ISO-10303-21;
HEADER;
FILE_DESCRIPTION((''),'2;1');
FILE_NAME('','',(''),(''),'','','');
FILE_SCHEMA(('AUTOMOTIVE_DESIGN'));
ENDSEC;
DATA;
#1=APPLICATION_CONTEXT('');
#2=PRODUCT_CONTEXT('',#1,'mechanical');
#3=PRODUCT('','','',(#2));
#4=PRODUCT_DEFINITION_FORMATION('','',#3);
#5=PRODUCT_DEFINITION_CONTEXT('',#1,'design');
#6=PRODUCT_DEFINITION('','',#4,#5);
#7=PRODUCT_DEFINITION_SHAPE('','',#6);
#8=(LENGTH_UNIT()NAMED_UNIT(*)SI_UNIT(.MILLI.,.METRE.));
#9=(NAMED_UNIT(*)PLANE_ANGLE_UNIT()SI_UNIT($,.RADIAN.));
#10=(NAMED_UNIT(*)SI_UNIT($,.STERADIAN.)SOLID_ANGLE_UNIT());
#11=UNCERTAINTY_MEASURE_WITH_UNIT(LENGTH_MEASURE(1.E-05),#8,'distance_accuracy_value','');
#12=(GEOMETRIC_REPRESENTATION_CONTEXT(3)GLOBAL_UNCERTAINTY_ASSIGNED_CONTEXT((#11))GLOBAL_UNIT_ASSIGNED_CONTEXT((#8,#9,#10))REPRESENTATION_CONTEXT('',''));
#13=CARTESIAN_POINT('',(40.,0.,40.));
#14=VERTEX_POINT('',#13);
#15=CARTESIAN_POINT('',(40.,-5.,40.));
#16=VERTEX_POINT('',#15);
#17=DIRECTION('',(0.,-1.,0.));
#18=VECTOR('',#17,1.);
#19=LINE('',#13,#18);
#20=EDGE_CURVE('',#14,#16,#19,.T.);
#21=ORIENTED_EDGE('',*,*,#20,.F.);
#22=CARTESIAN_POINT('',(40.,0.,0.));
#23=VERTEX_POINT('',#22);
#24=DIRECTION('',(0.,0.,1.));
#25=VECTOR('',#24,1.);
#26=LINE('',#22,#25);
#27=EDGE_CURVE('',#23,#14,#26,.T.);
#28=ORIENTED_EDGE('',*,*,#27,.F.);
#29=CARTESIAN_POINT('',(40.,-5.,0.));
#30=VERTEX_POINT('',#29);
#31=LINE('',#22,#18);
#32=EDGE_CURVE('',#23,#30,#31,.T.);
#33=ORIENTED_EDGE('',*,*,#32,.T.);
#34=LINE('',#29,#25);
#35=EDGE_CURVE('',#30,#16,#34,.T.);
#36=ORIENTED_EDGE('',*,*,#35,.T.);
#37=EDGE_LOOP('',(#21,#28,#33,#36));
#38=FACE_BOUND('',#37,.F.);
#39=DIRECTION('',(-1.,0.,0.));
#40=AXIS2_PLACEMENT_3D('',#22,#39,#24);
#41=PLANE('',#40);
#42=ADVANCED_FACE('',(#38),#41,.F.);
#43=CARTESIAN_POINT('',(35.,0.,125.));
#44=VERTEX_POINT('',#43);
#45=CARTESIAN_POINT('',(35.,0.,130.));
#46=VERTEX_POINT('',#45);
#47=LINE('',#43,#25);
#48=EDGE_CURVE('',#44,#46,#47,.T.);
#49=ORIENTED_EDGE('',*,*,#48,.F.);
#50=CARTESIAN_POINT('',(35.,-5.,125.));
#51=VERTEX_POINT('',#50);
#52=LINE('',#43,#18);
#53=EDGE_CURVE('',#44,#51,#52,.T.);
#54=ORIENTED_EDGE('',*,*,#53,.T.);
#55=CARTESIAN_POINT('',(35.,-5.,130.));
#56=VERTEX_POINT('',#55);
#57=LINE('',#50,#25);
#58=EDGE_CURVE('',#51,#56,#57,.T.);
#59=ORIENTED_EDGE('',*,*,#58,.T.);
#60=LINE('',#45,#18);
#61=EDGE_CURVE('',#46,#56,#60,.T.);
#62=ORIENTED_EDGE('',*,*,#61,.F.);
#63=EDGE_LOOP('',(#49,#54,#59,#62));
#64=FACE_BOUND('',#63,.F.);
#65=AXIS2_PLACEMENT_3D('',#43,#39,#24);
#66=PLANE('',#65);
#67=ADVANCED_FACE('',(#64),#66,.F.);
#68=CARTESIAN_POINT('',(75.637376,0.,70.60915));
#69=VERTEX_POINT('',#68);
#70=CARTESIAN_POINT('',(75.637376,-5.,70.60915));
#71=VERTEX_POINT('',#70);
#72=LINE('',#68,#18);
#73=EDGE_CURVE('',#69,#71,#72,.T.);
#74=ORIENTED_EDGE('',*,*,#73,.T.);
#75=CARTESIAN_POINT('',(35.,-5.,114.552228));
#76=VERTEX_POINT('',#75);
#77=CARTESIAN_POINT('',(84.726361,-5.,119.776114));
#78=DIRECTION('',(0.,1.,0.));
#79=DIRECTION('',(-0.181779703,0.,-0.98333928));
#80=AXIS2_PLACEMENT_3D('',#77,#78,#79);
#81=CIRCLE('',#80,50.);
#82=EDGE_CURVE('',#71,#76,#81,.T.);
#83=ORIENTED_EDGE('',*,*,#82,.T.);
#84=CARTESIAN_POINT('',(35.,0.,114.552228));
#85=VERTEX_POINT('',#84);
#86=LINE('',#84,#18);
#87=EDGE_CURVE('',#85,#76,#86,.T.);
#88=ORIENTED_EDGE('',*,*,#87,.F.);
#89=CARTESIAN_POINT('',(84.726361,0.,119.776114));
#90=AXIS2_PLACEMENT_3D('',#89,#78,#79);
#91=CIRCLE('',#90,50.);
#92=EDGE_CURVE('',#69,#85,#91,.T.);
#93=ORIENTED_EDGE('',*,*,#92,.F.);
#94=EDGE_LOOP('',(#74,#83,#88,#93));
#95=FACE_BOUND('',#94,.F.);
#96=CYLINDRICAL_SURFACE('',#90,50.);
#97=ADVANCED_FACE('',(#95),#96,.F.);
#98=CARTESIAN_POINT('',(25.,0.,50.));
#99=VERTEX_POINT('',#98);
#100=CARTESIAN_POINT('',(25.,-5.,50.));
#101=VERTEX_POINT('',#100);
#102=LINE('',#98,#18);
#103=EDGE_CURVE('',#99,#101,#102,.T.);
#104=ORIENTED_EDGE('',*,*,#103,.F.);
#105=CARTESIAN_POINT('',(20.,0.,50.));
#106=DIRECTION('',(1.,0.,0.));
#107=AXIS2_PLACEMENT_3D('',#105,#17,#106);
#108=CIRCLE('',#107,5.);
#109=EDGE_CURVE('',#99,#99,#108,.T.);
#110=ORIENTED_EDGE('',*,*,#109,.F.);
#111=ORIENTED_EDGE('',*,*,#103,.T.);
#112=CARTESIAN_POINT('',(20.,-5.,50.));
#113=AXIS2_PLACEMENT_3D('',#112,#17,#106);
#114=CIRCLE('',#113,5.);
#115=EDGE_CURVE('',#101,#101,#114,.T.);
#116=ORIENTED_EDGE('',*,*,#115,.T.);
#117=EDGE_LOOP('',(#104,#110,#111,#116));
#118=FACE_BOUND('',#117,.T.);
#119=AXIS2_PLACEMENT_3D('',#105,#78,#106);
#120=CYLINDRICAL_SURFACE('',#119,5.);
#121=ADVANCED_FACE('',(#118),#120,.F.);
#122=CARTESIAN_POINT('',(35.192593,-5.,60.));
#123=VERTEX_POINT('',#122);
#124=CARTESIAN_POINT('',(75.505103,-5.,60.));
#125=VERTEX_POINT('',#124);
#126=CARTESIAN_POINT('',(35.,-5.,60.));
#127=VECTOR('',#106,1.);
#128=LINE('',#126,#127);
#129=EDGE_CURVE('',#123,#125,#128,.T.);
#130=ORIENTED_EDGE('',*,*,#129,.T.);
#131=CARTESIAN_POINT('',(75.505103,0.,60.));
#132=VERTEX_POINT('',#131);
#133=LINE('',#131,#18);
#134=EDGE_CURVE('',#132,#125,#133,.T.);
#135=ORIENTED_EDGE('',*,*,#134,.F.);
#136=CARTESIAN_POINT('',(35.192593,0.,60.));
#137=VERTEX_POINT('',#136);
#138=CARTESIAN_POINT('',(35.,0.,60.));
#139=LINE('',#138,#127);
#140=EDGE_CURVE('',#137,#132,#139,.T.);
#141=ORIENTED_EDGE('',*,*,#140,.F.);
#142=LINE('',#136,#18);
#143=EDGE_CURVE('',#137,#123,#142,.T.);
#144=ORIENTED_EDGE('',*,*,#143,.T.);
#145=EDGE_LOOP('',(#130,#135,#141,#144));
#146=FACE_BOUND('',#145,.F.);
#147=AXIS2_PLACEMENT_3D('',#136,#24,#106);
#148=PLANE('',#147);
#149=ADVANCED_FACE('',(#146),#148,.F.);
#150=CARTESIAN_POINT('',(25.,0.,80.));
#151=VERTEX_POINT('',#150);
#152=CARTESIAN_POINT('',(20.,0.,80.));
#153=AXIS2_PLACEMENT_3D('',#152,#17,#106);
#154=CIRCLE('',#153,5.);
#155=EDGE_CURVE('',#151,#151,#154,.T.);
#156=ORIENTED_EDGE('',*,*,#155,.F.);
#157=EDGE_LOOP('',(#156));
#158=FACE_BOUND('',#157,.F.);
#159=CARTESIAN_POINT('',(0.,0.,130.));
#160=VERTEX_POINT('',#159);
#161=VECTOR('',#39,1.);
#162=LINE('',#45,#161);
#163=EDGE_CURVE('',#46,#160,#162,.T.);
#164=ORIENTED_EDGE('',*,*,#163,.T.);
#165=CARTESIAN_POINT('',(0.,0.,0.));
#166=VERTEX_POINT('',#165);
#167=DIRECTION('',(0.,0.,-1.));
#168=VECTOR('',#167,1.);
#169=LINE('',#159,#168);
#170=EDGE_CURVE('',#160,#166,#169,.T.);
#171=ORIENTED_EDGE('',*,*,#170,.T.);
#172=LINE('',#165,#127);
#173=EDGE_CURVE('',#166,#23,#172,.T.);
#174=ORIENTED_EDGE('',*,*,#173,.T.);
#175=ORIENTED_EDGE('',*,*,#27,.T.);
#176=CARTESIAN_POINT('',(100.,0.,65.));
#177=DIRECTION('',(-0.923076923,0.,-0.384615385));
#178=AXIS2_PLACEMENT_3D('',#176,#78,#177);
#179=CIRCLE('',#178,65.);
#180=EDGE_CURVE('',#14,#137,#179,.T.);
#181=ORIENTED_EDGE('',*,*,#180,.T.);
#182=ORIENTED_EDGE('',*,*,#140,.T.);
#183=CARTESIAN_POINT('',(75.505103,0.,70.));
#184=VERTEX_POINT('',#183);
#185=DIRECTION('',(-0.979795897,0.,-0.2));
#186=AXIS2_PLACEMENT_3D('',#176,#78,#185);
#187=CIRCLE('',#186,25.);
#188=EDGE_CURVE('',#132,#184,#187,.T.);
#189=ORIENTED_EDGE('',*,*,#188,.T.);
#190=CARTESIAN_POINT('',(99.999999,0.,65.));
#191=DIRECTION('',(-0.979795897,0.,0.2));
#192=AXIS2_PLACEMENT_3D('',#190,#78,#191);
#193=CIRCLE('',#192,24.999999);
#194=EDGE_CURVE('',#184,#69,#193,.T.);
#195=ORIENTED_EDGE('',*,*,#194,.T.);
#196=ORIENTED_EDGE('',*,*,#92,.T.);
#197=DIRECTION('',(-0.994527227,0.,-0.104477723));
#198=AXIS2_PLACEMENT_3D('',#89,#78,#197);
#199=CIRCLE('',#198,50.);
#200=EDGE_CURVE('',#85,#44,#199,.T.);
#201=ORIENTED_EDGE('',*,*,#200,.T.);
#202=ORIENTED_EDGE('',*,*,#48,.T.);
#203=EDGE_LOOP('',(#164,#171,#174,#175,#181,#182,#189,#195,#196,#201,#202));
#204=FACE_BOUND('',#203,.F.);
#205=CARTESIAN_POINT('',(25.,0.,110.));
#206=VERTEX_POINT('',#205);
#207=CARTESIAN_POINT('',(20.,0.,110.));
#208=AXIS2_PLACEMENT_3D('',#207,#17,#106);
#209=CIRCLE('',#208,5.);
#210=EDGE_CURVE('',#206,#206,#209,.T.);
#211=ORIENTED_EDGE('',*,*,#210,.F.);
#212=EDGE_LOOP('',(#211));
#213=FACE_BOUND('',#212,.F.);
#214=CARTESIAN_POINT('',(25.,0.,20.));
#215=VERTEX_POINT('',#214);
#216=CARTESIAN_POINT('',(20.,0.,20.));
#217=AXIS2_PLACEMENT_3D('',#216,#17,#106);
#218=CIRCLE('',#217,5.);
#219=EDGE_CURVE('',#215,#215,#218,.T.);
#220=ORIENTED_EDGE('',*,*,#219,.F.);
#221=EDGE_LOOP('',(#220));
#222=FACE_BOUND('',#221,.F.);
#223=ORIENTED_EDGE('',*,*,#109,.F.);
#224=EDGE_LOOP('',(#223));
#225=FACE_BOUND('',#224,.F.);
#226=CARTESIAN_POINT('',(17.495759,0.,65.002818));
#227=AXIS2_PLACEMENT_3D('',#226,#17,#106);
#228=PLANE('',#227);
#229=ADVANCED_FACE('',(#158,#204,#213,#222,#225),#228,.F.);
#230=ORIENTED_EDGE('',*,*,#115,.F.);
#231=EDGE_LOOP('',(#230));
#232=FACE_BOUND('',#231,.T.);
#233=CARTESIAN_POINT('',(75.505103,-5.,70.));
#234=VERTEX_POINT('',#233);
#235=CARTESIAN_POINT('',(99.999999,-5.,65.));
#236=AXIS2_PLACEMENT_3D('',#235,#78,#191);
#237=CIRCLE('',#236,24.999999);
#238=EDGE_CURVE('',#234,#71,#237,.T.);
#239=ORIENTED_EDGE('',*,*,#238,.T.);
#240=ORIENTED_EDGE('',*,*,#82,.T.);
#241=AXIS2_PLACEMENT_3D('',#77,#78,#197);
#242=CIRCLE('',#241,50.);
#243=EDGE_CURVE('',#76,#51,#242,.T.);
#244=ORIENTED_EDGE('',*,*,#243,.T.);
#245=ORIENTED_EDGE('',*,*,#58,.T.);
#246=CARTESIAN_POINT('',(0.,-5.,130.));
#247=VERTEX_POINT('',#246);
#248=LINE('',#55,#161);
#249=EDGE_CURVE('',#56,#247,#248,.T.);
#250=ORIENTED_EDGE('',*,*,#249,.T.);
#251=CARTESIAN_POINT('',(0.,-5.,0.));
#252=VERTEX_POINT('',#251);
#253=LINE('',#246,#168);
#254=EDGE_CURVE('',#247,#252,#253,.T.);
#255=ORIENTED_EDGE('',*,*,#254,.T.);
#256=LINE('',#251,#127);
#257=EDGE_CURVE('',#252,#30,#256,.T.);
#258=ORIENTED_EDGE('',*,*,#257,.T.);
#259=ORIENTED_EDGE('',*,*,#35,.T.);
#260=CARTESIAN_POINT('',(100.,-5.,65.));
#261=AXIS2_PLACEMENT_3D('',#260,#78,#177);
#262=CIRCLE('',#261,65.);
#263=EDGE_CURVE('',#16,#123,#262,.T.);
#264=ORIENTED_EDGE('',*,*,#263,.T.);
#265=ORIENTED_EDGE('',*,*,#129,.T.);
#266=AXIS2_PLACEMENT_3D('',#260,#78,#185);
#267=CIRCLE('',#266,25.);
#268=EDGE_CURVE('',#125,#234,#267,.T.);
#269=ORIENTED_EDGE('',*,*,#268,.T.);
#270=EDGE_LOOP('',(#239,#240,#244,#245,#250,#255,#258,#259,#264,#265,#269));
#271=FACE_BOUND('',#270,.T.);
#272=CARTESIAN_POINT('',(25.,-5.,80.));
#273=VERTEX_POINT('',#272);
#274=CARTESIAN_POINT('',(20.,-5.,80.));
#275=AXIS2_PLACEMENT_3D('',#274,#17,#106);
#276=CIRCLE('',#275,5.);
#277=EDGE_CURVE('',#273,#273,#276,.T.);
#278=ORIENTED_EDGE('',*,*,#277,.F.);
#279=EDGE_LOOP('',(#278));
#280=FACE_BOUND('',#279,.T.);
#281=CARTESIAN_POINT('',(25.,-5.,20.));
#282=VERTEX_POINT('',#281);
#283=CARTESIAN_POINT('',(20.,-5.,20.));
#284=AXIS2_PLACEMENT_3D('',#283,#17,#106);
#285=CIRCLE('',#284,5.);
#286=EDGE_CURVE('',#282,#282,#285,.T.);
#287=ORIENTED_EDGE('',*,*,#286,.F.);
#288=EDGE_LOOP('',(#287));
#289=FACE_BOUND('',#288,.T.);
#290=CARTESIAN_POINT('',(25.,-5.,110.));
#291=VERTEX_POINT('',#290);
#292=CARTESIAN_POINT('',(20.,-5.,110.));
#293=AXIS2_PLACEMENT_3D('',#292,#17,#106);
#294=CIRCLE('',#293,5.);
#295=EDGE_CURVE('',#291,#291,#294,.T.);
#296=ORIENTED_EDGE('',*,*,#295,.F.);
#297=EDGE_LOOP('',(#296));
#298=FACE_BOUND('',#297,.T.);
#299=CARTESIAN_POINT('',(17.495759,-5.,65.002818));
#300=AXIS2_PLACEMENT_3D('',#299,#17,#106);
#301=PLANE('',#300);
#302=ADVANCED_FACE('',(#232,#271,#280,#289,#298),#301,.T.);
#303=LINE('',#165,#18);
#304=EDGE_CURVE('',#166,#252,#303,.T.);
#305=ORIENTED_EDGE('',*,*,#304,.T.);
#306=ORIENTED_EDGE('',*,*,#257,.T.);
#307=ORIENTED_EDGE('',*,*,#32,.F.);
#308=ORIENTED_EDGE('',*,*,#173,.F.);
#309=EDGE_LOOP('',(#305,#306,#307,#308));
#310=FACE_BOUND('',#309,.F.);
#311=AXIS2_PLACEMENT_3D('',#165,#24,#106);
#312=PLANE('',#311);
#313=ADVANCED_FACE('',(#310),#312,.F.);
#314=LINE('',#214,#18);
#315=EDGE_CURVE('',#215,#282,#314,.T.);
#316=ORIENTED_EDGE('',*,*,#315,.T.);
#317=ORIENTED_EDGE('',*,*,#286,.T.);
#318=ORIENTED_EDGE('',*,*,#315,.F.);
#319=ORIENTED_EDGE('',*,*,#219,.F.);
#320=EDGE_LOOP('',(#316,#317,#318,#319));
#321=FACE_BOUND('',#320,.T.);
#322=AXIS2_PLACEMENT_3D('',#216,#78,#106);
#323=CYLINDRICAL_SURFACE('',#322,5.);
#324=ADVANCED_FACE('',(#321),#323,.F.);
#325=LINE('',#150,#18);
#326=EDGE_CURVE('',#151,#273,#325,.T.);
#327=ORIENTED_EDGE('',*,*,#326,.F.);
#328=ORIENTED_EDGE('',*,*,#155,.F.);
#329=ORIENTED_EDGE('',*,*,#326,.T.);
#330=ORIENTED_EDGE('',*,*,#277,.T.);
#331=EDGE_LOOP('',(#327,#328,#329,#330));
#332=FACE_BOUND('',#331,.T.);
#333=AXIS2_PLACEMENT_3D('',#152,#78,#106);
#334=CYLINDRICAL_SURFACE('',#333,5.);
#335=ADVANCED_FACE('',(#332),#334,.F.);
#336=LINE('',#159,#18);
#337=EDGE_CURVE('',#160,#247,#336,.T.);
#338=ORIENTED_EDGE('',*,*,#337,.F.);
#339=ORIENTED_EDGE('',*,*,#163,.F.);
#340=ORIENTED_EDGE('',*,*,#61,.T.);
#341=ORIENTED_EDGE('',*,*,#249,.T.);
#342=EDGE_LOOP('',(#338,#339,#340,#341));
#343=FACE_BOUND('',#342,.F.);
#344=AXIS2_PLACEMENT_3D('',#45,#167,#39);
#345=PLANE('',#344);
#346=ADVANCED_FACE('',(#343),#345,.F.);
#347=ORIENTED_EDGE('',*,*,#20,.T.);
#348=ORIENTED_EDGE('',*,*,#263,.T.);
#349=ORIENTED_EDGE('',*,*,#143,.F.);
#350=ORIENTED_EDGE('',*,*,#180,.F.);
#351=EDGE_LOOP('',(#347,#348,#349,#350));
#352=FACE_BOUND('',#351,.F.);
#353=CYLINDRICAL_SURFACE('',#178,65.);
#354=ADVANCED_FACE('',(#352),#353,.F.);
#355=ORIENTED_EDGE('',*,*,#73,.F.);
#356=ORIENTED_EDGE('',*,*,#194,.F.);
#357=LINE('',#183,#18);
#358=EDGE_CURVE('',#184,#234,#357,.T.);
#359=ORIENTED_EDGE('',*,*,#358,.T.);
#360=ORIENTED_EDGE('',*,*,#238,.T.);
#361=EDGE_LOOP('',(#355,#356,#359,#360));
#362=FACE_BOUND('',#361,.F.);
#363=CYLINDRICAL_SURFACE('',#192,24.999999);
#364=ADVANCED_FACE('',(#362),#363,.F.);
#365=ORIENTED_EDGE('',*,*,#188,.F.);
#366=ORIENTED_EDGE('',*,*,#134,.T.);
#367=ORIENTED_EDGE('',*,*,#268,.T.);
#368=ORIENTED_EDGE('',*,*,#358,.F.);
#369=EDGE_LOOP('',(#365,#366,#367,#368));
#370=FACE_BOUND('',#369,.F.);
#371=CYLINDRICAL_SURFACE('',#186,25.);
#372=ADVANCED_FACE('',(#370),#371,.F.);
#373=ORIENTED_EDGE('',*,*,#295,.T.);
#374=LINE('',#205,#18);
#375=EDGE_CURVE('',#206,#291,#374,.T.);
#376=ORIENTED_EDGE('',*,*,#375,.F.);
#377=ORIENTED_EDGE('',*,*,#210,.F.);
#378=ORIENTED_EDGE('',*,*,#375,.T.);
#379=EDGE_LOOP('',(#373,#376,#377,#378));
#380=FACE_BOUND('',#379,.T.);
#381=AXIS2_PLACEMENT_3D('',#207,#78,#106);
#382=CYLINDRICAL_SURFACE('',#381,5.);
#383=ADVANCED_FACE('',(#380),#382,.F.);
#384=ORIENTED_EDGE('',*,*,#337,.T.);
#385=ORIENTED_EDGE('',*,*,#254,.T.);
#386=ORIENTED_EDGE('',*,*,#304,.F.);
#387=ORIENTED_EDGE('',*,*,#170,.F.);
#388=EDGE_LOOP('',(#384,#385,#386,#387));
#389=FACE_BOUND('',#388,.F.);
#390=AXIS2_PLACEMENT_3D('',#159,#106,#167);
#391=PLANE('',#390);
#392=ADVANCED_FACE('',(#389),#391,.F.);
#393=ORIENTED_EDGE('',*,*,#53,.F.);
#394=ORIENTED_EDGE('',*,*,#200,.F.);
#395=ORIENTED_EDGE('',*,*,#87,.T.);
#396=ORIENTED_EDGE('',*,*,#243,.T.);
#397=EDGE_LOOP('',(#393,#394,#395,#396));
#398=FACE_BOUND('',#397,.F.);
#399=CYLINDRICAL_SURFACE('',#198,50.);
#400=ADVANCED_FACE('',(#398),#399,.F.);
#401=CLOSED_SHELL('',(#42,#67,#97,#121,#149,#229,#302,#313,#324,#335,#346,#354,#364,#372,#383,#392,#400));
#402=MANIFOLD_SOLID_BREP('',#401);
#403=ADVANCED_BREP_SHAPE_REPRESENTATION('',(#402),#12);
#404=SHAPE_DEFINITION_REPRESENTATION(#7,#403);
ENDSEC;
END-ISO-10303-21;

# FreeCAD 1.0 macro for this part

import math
import FreeCAD as App
import Part
import Sketcher
from FreeCAD import Vector

doc = App.newDocument("Part")
params = doc.addObject("Spreadsheet::Sheet", "Params")
for row, (alias, value) in enumerate([
    ("sketch1_diameter", "10 mm"),
    ("sketch1_radius", "65 mm"),
    ("sketch1_radius2", "25 mm"),
    ("sketch1_radius3", "50 mm"),
    ("sketch1_width", "40 mm"),
    ("pad1_length", "5 mm"),
], start=1):
    params.set(f"A{row}", alias)
    params.set(f"B{row}", "=" + value)
    params.setAlias(f"B{row}", alias)

body = doc.addObject("PartDesign::Body", "Body")

sketch1 = body.newObject("Sketcher::SketchObject", "Sketch")
sketch1.AttachmentSupport = (doc.getObject("XZ_Plane"), [""])
sketch1.MapMode = "FlatFace"
sketch1.addGeometry(Part.LineSegment(Vector(0, 130, 0), Vector(0, 0, 0)), False)
sketch1.addGeometry(Part.LineSegment(Vector(0, 0, 0), Vector(40, 0, 0)), False)
sketch1.addGeometry(Part.LineSegment(Vector(40, 0, 0), Vector(40, 40, 0)), False)
sketch1.addGeometry(Part.ArcOfCircle(Part.Circle(Vector(100, 65, 0), Vector(0, 0, 1), 65), math.radians(-175.588274), math.radians(-157.380135)), False)
sketch1.addGeometry(Part.LineSegment(Vector(35.192593, 60, 0), Vector(75.505103, 60, 0)), False)
sketch1.addGeometry(Part.ArcOfCircle(Part.Circle(Vector(100, 65, 0), Vector(0, 0, 1), 25), math.radians(168.463041), math.radians(191.536959)), False)
sketch1.addGeometry(Part.ArcOfCircle(Part.Circle(Vector(99.999999, 65, 0), Vector(0, 0, 1), 24.999999), math.radians(167.034401), math.radians(168.463041)), False)
sketch1.addGeometry(Part.ArcOfCircle(Part.Circle(Vector(84.726361, 119.776114, 0), Vector(0, 0, 1), 50), math.radians(-174.002923), math.radians(-100.47344)), False)
sketch1.addGeometry(Part.ArcOfCircle(Part.Circle(Vector(84.726361, 119.776114, 0), Vector(0, 0, 1), 50), math.radians(174.002923), math.radians(185.997077)), False)
sketch1.addGeometry(Part.LineSegment(Vector(35, 125, 0), Vector(35, 130, 0)), False)
sketch1.addGeometry(Part.LineSegment(Vector(35, 130, 0), Vector(0, 130, 0)), False)
sketch1.addGeometry(Part.Circle(Vector(20, 20, 0), Vector(0, 0, 1), 5), False)
sketch1.addGeometry(Part.Circle(Vector(20, 50, 0), Vector(0, 0, 1), 5), False)
sketch1.addGeometry(Part.Circle(Vector(20, 80, 0), Vector(0, 0, 1), 5), False)
sketch1.addGeometry(Part.Circle(Vector(20, 110, 0), Vector(0, 0, 1), 5), False)
sketch1.addConstraint(Sketcher.Constraint("Coincident", 0, 2, 1, 1))
sketch1.addConstraint(Sketcher.Constraint("Coincident", 1, 2, 2, 1))
sketch1.addConstraint(Sketcher.Constraint("Coincident", 2, 2, 3, 2))
sketch1.addConstraint(Sketcher.Constraint("Coincident", 3, 1, 4, 1))
sketch1.addConstraint(Sketcher.Constraint("Coincident", 4, 2, 5, 2))
sketch1.addConstraint(Sketcher.Constraint("Tangent", 5, 1, 6, 2))
sketch1.addConstraint(Sketcher.Constraint("Coincident", 6, 1, 7, 2))
sketch1.addConstraint(Sketcher.Constraint("Tangent", 7, 1, 8, 2))
sketch1.addConstraint(Sketcher.Constraint("Coincident", 8, 1, 9, 1))
sketch1.addConstraint(Sketcher.Constraint("Coincident", 9, 2, 10, 1))
sketch1.addConstraint(Sketcher.Constraint("Coincident", 10, 2, 0, 1))
sketch1.addConstraint(Sketcher.Constraint("Vertical", 0))
sketch1.addConstraint(Sketcher.Constraint("Horizontal", 1))
sketch1.addConstraint(Sketcher.Constraint("Vertical", 2))
sketch1.addConstraint(Sketcher.Constraint("Horizontal", 4))
sketch1.addConstraint(Sketcher.Constraint("Vertical", 9))
sketch1.addConstraint(Sketcher.Constraint("Horizontal", 10))
sketch1.addConstraint(Sketcher.Constraint("Coincident", 0, 2, -1, 1))
sketch1.addConstraint(Sketcher.Constraint("Coincident", 5, 3, 3, 3))
sketch1.addConstraint(Sketcher.Constraint("Equal", 5, 6))
sketch1.addConstraint(Sketcher.Constraint("Equal", 7, 8))
sketch1.addConstraint(Sketcher.Constraint("Equal", 11, 12))
sketch1.addConstraint(Sketcher.Constraint("Equal", 12, 13))
sketch1.addConstraint(Sketcher.Constraint("Equal", 13, 14))
sketch1.addConstraint(Sketcher.Constraint("Vertical", 11, 3, 12, 3))
sketch1.addConstraint(Sketcher.Constraint("Vertical", 12, 3, 13, 3))
sketch1.addConstraint(Sketcher.Constraint("Vertical", 13, 3, 14, 3))
sketch1.addConstraint(Sketcher.Constraint("Vertical", 4, 2, 5, 1))
sketch1.addConstraint(Sketcher.Constraint("Vertical", 7, 1, 8, 1))
sketch1.addConstraint(Sketcher.Constraint("Equal", 1, 2))
sketch1.addConstraint(Sketcher.Constraint("Diameter", 11, 10.0))
sketch1.addConstraint(Sketcher.Constraint("Radius", 3, 65.0))
sketch1.addConstraint(Sketcher.Constraint("Radius", 5, 25.0))
sketch1.addConstraint(Sketcher.Constraint("Radius", 7, 50.0))
sketch1.addConstraint(Sketcher.Constraint("DistanceX", 1, 1, 1, 2, 40.0))
sketch1.addConstraint(Sketcher.Constraint("DistanceX", 10, 2, 10, 1, 35.0))
sketch1.addConstraint(Sketcher.Constraint("DistanceY", 0, 2, 0, 1, 130.0))
sketch1.addConstraint(Sketcher.Constraint("DistanceY", 9, 1, 9, 2, 5.0))
sketch1.addConstraint(Sketcher.Constraint("DistanceX", -1, 1, 3, 3, 100.0))
sketch1.addConstraint(Sketcher.Constraint("DistanceX", -1, 1, 11, 3, 20.0))
sketch1.addConstraint(Sketcher.Constraint("DistanceY", -1, 1, 11, 3, 20.0))
sketch1.addConstraint(Sketcher.Constraint("DistanceY", -1, 1, 12, 3, 50.0))
sketch1.addConstraint(Sketcher.Constraint("DistanceY", -1, 1, 13, 3, 80.0))
sketch1.addConstraint(Sketcher.Constraint("DistanceY", -1, 1, 14, 3, 110.0))
sketch1.addConstraint(Sketcher.Constraint("DistanceY", -1, 1, 3, 1, 60.0))
sketch1.addConstraint(Sketcher.Constraint("DistanceX", -1, 1, 7, 3, 84.726361))
sketch1.setExpression("Constraints[30]", "Params.sketch1_diameter")
sketch1.setExpression("Constraints[31]", "Params.sketch1_radius")
sketch1.setExpression("Constraints[32]", "Params.sketch1_radius2")
sketch1.setExpression("Constraints[33]", "Params.sketch1_radius3")
sketch1.setExpression("Constraints[34]", "Params.sketch1_width")
pad1 = body.newObject("PartDesign::Pad", "Pad")
pad1.Profile = sketch1
pad1.setExpression("Length", "Params.pad1_length")

doc.recompute()
